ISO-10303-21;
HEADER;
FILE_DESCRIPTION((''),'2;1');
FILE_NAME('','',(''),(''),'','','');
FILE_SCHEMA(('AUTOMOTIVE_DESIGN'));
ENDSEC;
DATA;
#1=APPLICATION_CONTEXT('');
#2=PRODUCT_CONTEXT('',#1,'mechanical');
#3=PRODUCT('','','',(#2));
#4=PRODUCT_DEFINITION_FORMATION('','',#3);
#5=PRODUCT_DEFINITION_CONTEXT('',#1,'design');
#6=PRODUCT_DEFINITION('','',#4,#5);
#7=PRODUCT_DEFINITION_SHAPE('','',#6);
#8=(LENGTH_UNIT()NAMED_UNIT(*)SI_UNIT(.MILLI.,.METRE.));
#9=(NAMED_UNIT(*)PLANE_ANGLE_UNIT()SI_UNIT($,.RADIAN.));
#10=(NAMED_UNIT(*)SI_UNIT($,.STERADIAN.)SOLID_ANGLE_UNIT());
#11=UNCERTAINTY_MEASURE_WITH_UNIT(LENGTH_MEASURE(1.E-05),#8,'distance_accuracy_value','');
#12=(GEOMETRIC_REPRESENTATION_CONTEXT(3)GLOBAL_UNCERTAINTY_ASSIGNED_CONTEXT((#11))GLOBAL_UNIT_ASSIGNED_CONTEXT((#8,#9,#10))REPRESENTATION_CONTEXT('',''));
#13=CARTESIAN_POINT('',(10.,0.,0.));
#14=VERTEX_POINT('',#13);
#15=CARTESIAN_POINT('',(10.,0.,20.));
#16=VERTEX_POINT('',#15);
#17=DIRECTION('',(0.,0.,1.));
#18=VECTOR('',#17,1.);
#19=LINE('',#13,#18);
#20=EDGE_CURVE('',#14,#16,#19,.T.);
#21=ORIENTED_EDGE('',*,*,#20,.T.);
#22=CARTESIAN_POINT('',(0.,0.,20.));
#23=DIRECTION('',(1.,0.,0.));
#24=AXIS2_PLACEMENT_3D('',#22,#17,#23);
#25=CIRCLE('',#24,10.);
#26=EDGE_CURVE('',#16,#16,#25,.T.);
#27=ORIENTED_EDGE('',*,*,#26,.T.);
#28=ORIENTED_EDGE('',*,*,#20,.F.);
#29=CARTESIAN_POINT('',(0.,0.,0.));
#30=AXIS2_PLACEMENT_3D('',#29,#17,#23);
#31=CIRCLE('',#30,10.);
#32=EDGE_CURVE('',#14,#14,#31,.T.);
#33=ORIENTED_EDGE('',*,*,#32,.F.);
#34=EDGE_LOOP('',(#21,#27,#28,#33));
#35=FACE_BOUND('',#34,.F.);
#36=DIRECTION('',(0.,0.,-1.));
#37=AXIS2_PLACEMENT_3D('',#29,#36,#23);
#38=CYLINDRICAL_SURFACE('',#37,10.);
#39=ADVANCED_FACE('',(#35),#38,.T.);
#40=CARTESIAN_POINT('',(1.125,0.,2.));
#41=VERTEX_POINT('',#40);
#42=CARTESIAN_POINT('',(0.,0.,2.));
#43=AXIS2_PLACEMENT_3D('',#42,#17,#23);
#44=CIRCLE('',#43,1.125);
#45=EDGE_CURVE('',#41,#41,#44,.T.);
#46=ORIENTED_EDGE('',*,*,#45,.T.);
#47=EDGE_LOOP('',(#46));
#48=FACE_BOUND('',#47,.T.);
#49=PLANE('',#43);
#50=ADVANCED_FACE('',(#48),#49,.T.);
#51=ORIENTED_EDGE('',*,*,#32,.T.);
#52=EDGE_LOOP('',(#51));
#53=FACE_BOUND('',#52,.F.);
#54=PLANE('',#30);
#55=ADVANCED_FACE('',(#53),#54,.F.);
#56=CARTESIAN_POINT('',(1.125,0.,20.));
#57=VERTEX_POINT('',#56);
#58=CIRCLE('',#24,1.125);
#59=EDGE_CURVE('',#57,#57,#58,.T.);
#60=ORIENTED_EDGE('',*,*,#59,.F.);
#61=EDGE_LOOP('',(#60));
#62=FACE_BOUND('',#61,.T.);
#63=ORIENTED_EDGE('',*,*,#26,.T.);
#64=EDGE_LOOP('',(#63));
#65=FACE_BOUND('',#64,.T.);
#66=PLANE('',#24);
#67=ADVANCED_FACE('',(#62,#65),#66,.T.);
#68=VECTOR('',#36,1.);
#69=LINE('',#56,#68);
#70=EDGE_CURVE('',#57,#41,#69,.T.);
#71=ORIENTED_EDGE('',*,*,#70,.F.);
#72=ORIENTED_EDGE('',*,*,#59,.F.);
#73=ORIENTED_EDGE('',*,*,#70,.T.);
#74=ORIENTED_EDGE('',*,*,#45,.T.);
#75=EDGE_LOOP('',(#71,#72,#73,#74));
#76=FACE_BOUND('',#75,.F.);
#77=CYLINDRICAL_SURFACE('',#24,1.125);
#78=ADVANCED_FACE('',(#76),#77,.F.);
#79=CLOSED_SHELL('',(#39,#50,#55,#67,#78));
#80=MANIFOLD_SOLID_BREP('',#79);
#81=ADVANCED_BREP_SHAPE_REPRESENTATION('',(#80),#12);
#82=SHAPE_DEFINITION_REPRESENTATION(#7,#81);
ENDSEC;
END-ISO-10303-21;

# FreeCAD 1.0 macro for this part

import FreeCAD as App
import Part
import Sketcher

doc = App.newDocument("Part")
body = doc.addObject("PartDesign::Body", "Body")

sketch1 = body.newObject("Sketcher::SketchObject", "Sketch")
sketch1.AttachmentSupport = (doc.getObject("XY_Plane"), [""])
sketch1.MapMode = "FlatFace"
sketch1.addGeometry(Part.Circle(App.Vector(0, 0, 0), App.Vector(0, 0, 1), 10), False)
sketch1.addConstraint(Sketcher.Constraint("Coincident", 0, 3, -1, 1))
sketch1.addConstraint(Sketcher.Constraint("Diameter", 0, 20.0))
pad1 = body.newObject("PartDesign::Pad", "Pad")
pad1.Profile = sketch1
pad1.Length = 20

sketch2 = body.newObject("Sketcher::SketchObject", "Sketch001")
sketch2.AttachmentSupport = (doc.getObject("XY_Plane"), [""])
sketch2.MapMode = "FlatFace"
sketch2.AttachmentOffset = App.Placement(App.Vector(0, 0, 20), App.Rotation())
sketch2.addGeometry(Part.Circle(App.Vector(0, 0, 0), App.Vector(0, 0, 1), 1.1), False)
sketch2.addConstraint(Sketcher.Constraint("Coincident", 0, 3, -1, 1))
sketch2.addConstraint(Sketcher.Constraint("Diameter", 0, 2.25))
pocket1 = body.newObject("PartDesign::Pocket", "Pocket")
pocket1.Profile = sketch2
pocket1.Length = 18

doc.recompute()
